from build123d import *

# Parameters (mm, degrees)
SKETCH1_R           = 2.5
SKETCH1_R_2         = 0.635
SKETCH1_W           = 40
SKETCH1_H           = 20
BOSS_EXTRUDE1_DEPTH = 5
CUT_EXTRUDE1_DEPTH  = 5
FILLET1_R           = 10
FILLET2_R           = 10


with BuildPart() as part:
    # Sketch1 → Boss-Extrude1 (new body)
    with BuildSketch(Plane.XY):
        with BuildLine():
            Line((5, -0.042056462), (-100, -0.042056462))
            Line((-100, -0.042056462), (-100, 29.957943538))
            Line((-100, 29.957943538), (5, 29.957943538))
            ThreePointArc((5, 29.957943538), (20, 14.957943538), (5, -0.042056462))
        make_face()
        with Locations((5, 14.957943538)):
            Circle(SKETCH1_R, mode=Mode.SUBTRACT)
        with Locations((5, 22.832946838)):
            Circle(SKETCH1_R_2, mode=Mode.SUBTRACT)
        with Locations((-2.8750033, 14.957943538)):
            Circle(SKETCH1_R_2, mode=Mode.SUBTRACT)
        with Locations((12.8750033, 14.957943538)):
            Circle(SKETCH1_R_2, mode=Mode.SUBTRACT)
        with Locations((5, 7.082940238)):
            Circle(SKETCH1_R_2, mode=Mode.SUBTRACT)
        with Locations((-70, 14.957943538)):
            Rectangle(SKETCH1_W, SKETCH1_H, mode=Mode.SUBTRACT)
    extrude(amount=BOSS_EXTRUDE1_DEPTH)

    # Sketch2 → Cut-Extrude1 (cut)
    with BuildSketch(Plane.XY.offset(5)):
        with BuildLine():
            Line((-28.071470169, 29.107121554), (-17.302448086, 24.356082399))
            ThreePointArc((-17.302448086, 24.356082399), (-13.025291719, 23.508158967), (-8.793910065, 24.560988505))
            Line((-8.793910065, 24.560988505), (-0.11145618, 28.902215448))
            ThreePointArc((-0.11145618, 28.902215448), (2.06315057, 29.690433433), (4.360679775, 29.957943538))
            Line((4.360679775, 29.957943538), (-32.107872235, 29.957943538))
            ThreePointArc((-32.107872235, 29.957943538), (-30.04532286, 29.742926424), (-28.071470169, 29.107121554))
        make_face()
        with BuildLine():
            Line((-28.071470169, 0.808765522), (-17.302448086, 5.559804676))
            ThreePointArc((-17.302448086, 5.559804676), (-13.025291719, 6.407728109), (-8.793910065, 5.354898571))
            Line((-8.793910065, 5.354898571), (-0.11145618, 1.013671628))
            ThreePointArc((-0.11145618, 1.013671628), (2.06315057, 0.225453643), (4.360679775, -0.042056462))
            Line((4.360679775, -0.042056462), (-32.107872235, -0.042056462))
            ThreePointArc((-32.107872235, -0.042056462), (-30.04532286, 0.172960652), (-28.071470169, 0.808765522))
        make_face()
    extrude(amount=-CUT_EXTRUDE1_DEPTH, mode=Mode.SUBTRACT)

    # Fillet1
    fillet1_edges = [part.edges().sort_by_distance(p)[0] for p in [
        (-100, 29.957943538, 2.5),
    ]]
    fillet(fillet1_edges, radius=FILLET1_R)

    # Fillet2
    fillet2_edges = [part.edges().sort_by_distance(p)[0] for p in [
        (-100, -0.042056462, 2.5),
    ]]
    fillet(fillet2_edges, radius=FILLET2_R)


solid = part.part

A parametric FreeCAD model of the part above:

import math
import FreeCAD as App
import Part
import Sketcher

V = App.Vector


def edges_at(feature, points):
    """Names of the edges that pass closest to the given points."""
    edges = feature.Shape.Edges
    near = lambda p: min(range(len(edges)), key=lambda i: edges[i].distToShape(Part.Vertex(*p))[0])
    return sorted({f"Edge{near(p) + 1}" for p in points})


def add_polygon(sketch, points):
    """Adds a closed chain of lines whose ends are joined by coincident constraints."""
    first, n = sketch.GeometryCount, len(points)
    for a, b in zip(points, points[1:] + points[:1]):
        sketch.addGeometry(Part.LineSegment(App.Vector(*a, 0), App.Vector(*b, 0)), False)
    for i in range(n):
        sketch.addConstraint(Sketcher.Constraint("Coincident", first + i, 2, first + (i + 1) % n, 1))

doc = App.newDocument("Part")
params = doc.addObject("Spreadsheet::Sheet", "Params")
for row, (alias, value) in enumerate([
    ("sketch1_diameter", "5 mm"),
    ("sketch1_radius", "15 mm"),
    ("sketch1_diameter2", "1.27 mm"),
    ("sketch1_width", "105 mm"),
    ("sketch1_width2", "40 mm"),
    ("pad1_length", "5 mm"),
    ("sketch2_radius", "10 mm"),
    ("pocket1_length", "5 mm"),
    ("fillet_radius", "10 mm"),
    ("fillet2_radius", "10 mm"),
], start=1):
    params.set(f"A{row}", alias)
    params.set(f"B{row}", "=" + value)
    params.setAlias(f"B{row}", alias)

body = doc.addObject("PartDesign::Body", "Body")

sketch1 = body.newObject("Sketcher::SketchObject", "Sketch")
sketch1.AttachmentSupport = (doc.getObject("XY_Plane"), [""])
sketch1.MapMode = "FlatFace"
sketch1.addGeometry(Part.LineSegment(V(-100, 0, 0), V(5, 0, 0)), False)
sketch1.addGeometry(Part.ArcOfCircle(Part.Circle(V(5, 15, 0), V(0, 0, 1), 15), math.radians(-90), math.radians(90)), False)
sketch1.addGeometry(Part.LineSegment(V(5, 30, 0), V(-100, 30, 0)), False)
sketch1.addGeometry(Part.LineSegment(V(-100, 30, 0), V(-100, 0, 0)), False)
sketch1.addGeometry(Part.Circle(V(5, 7.1, 0), V(0, 0, 1), 0.6), False)
sketch1.addGeometry(Part.Circle(V(12.9, 15, 0), V(0, 0, 1), 0.6), False)
sketch1.addGeometry(Part.Circle(V(5, 15, 0), V(0, 0, 1), 2.5), False)
sketch1.addGeometry(Part.Circle(V(-2.9, 15, 0), V(0, 0, 1), 0.6), False)
sketch1.addGeometry(Part.Circle(V(5, 22.8, 0), V(0, 0, 1), 0.6), False)
add_polygon(sketch1, [(-90, 5), (-90, 25), (-50, 25), (-50, 5)])
sketch1.addConstraint(Sketcher.Constraint("Tangent", 0, 2, 1, 1))
sketch1.addConstraint(Sketcher.Constraint("Tangent", 1, 2, 2, 1))
sketch1.addConstraint(Sketcher.Constraint("Coincident", 2, 2, 3, 1))
sketch1.addConstraint(Sketcher.Constraint("Coincident", 3, 2, 0, 1))
sketch1.addConstraint(Sketcher.Constraint("Horizontal", 0))
sketch1.addConstraint(Sketcher.Constraint("Horizontal", 2))
sketch1.addConstraint(Sketcher.Constraint("Vertical", 3))
sketch1.addConstraint(Sketcher.Constraint("Vertical", 9))
sketch1.addConstraint(Sketcher.Constraint("Horizontal", 10))
sketch1.addConstraint(Sketcher.Constraint("Vertical", 11))
sketch1.addConstraint(Sketcher.Constraint("Horizontal", 12))
sketch1.addConstraint(Sketcher.Constraint("Coincident", 6, 3, 1, 3))
sketch1.addConstraint(Sketcher.Constraint("Equal", 4, 5))
sketch1.addConstraint(Sketcher.Constraint("Equal", 5, 7))
sketch1.addConstraint(Sketcher.Constraint("Equal", 7, 8))
sketch1.addConstraint(Sketcher.Constraint("Horizontal", 1, 3, 5, 3))
sketch1.addConstraint(Sketcher.Constraint("Horizontal", 6, 3, 7, 3))
sketch1.addConstraint(Sketcher.Constraint("Vertical", 1, 3, 4, 3))
sketch1.addConstraint(Sketcher.Constraint("Vertical", 6, 3, 8, 3))
sketch1.addConstraint(Sketcher.Constraint("Diameter", 6, 5.0))
sketch1.addConstraint(Sketcher.Constraint("Radius", 1, 15.0))
sketch1.addConstraint(Sketcher.Constraint("Diameter", 4, 1.27))
sketch1.addConstraint(Sketcher.Constraint("DistanceX", 0, 1, 0, 2, 105.0))
sketch1.addConstraint(Sketcher.Constraint("DistanceX", 10, 1, 10, 2, 40.0))
sketch1.addConstraint(Sketcher.Constraint("DistanceY", 9, 1, 9, 2, 20.0))
sketch1.addConstraint(Sketcher.Constraint("DistanceX", -1, 1, 1, 3, 5.0))
sketch1.addConstraint(Sketcher.Constraint("DistanceX", 9, 2, -1, 1, 90.0))
sketch1.addConstraint(Sketcher.Constraint("DistanceY", 9, 2, 2, 2, 5.0))
sketch1.addConstraint(Sketcher.Constraint("DistanceY", -1, 1, 4, 3, 7.08294))
sketch1.addConstraint(Sketcher.Constraint("DistanceY", -1, 1, 1, 3, 14.957944))
sketch1.addConstraint(Sketcher.Constraint("DistanceX", -1, 1, 5, 3, 12.875003))
sketch1.addConstraint(Sketcher.Constraint("DistanceX", 7, 3, -1, 1, 2.875003))
sketch1.addConstraint(Sketcher.Constraint("DistanceY", -1, 1, 8, 3, 22.832947))
sketch1.setExpression("Constraints[23]", "Params.sketch1_diameter")
sketch1.setExpression("Constraints[24]", "Params.sketch1_radius")
sketch1.setExpression("Constraints[25]", "Params.sketch1_diameter2")
sketch1.setExpression("Constraints[26]", "Params.sketch1_width")
sketch1.setExpression("Constraints[27]", "Params.sketch1_width2")
pad1 = body.newObject("PartDesign::Pad", "Pad")
pad1.Profile = sketch1
pad1.setExpression("Length", "Params.pad1_length")

sketch2 = body.newObject("Sketcher::SketchObject", "Sketch001")
sketch2.AttachmentSupport = (doc.getObject("XY_Plane"), [""])
sketch2.MapMode = "FlatFace"
sketch2.AttachmentOffset = App.Placement(V(0, 0, 5), App.Rotation())
sketch2.addGeometry(Part.LineSegment(V(-28.1, 29.1, 0), V(-17.3, 24.4, 0)), False)
sketch2.addGeometry(Part.ArcOfCircle(Part.Circle(V(-13.3, 33.5, 0), V(0, 0, 1), 10), math.radians(-114), math.radians(-63)), False)
sketch2.addGeometry(Part.LineSegment(V(-8.8, 24.6, 0), V(-0.1, 28.9, 0)), False)
sketch2.addGeometry(Part.ArcOfCircle(Part.Circle(V(4.4, 20, 0), V(0, 0, 1), 10), math.radians(90), math.radians(117)), False)
sketch2.addGeometry(Part.LineSegment(V(4.4, 30, 0), V(-32.1, 30, 0)), False)
sketch2.addGeometry(Part.ArcOfCircle(Part.Circle(V(-32.1, 20, 0), V(0, 0, 1), 10), math.radians(66), math.radians(90)), False)
sketch2.addGeometry(Part.LineSegment(V(-17.3, 5.6, 0), V(-28.1, 0.8, 0)), False)
sketch2.addGeometry(Part.ArcOfCircle(Part.Circle(V(-32.1, 10, 0), V(0, 0, 1), 10), math.radians(-90), math.radians(-66)), False)
sketch2.addGeometry(Part.LineSegment(V(-32.1, 0, 0), V(4.4, 0, 0)), False)
sketch2.addGeometry(Part.ArcOfCircle(Part.Circle(V(4.4, 10, 0), V(0, 0, 1), 10), math.radians(-117), math.radians(-90)), False)
sketch2.addGeometry(Part.LineSegment(V(-0.1, 1, 0), V(-8.8, 5.4, 0)), False)
sketch2.addGeometry(Part.ArcOfCircle(Part.Circle(V(-13.3, -3.6, 0), V(0, 0, 1), 10), math.radians(63), math.radians(114)), False)
sketch2.addConstraint(Sketcher.Constraint("Tangent", 0, 2, 1, 1))
sketch2.addConstraint(Sketcher.Constraint("Tangent", 1, 2, 2, 1))
sketch2.addConstraint(Sketcher.Constraint("Tangent", 2, 2, 3, 2))
sketch2.addConstraint(Sketcher.Constraint("Tangent", 3, 1, 4, 1))
sketch2.addConstraint(Sketcher.Constraint("Tangent", 4, 2, 5, 2))
sketch2.addConstraint(Sketcher.Constraint("Tangent", 5, 1, 0, 1))
sketch2.addConstraint(Sketcher.Constraint("Tangent", 6, 2, 7, 2))
sketch2.addConstraint(Sketcher.Constraint("Tangent", 7, 1, 8, 1))
sketch2.addConstraint(Sketcher.Constraint("Tangent", 8, 2, 9, 2))
sketch2.addConstraint(Sketcher.Constraint("Tangent", 9, 1, 10, 1))
sketch2.addConstraint(Sketcher.Constraint("Tangent", 10, 2, 11, 1))
sketch2.addConstraint(Sketcher.Constraint("Tangent", 11, 2, 6, 1))
sketch2.addConstraint(Sketcher.Constraint("Horizontal", 4))
sketch2.addConstraint(Sketcher.Constraint("Horizontal", 8))
sketch2.addConstraint(Sketcher.Constraint("Equal", 1, 3))
sketch2.addConstraint(Sketcher.Constraint("Equal", 3, 5))
sketch2.addConstraint(Sketcher.Constraint("Equal", 5, 7))
sketch2.addConstraint(Sketcher.Constraint("Equal", 7, 9))
sketch2.addConstraint(Sketcher.Constraint("Equal", 9, 11))
sketch2.addConstraint(Sketcher.Constraint("Vertical", 5, 3, 7, 3))
sketch2.addConstraint(Sketcher.Constraint("Vertical", 3, 3, 9, 3))
sketch2.addConstraint(Sketcher.Constraint("Vertical", 1, 3, 11, 3))
sketch2.addConstraint(Sketcher.Constraint("Vertical", 5, 1, 6, 2))
sketch2.addConstraint(Sketcher.Constraint("Radius", 1, 10.0))
sketch2.addConstraint(Sketcher.Constraint("DistanceY", 7, 3, 5, 3, 10.0))
sketch2.addConstraint(Sketcher.Constraint("DistanceY", -1, 1, 10, 2, 5.354899))
sketch2.addConstraint(Sketcher.Constraint("Distance", 0, 11.77048))
sketch2.addConstraint(Sketcher.Constraint("Distance", 2, 9.707279))
sketch2.addConstraint(Sketcher.Constraint("DistanceX", 4, 2, 4, 1, 36.468552))
sketch2.addConstraint(Sketcher.Constraint("DistanceX", -1, 1, 3, 3, 4.36068))
sketch2.setExpression("Constraints[23]", "Params.sketch2_radius")
pocket1 = body.newObject("PartDesign::Pocket", "Pocket")
pocket1.Profile = sketch2
pocket1.setExpression("Length", "Params.pocket1_length")
doc.recompute()

fillet = body.newObject("PartDesign::Fillet", "Fillet")
fillet.Base = (pocket1, edges_at(pocket1, [(-100, 29.958, 2.5)]))
fillet.setExpression("Radius", "Params.fillet_radius")
doc.recompute()

fillet2 = body.newObject("PartDesign::Fillet", "Fillet001")
fillet2.Base = (fillet, edges_at(fillet, [(-100, -0.042, 2.5)]))
fillet2.setExpression("Radius", "Params.fillet2_radius")

doc.recompute()
